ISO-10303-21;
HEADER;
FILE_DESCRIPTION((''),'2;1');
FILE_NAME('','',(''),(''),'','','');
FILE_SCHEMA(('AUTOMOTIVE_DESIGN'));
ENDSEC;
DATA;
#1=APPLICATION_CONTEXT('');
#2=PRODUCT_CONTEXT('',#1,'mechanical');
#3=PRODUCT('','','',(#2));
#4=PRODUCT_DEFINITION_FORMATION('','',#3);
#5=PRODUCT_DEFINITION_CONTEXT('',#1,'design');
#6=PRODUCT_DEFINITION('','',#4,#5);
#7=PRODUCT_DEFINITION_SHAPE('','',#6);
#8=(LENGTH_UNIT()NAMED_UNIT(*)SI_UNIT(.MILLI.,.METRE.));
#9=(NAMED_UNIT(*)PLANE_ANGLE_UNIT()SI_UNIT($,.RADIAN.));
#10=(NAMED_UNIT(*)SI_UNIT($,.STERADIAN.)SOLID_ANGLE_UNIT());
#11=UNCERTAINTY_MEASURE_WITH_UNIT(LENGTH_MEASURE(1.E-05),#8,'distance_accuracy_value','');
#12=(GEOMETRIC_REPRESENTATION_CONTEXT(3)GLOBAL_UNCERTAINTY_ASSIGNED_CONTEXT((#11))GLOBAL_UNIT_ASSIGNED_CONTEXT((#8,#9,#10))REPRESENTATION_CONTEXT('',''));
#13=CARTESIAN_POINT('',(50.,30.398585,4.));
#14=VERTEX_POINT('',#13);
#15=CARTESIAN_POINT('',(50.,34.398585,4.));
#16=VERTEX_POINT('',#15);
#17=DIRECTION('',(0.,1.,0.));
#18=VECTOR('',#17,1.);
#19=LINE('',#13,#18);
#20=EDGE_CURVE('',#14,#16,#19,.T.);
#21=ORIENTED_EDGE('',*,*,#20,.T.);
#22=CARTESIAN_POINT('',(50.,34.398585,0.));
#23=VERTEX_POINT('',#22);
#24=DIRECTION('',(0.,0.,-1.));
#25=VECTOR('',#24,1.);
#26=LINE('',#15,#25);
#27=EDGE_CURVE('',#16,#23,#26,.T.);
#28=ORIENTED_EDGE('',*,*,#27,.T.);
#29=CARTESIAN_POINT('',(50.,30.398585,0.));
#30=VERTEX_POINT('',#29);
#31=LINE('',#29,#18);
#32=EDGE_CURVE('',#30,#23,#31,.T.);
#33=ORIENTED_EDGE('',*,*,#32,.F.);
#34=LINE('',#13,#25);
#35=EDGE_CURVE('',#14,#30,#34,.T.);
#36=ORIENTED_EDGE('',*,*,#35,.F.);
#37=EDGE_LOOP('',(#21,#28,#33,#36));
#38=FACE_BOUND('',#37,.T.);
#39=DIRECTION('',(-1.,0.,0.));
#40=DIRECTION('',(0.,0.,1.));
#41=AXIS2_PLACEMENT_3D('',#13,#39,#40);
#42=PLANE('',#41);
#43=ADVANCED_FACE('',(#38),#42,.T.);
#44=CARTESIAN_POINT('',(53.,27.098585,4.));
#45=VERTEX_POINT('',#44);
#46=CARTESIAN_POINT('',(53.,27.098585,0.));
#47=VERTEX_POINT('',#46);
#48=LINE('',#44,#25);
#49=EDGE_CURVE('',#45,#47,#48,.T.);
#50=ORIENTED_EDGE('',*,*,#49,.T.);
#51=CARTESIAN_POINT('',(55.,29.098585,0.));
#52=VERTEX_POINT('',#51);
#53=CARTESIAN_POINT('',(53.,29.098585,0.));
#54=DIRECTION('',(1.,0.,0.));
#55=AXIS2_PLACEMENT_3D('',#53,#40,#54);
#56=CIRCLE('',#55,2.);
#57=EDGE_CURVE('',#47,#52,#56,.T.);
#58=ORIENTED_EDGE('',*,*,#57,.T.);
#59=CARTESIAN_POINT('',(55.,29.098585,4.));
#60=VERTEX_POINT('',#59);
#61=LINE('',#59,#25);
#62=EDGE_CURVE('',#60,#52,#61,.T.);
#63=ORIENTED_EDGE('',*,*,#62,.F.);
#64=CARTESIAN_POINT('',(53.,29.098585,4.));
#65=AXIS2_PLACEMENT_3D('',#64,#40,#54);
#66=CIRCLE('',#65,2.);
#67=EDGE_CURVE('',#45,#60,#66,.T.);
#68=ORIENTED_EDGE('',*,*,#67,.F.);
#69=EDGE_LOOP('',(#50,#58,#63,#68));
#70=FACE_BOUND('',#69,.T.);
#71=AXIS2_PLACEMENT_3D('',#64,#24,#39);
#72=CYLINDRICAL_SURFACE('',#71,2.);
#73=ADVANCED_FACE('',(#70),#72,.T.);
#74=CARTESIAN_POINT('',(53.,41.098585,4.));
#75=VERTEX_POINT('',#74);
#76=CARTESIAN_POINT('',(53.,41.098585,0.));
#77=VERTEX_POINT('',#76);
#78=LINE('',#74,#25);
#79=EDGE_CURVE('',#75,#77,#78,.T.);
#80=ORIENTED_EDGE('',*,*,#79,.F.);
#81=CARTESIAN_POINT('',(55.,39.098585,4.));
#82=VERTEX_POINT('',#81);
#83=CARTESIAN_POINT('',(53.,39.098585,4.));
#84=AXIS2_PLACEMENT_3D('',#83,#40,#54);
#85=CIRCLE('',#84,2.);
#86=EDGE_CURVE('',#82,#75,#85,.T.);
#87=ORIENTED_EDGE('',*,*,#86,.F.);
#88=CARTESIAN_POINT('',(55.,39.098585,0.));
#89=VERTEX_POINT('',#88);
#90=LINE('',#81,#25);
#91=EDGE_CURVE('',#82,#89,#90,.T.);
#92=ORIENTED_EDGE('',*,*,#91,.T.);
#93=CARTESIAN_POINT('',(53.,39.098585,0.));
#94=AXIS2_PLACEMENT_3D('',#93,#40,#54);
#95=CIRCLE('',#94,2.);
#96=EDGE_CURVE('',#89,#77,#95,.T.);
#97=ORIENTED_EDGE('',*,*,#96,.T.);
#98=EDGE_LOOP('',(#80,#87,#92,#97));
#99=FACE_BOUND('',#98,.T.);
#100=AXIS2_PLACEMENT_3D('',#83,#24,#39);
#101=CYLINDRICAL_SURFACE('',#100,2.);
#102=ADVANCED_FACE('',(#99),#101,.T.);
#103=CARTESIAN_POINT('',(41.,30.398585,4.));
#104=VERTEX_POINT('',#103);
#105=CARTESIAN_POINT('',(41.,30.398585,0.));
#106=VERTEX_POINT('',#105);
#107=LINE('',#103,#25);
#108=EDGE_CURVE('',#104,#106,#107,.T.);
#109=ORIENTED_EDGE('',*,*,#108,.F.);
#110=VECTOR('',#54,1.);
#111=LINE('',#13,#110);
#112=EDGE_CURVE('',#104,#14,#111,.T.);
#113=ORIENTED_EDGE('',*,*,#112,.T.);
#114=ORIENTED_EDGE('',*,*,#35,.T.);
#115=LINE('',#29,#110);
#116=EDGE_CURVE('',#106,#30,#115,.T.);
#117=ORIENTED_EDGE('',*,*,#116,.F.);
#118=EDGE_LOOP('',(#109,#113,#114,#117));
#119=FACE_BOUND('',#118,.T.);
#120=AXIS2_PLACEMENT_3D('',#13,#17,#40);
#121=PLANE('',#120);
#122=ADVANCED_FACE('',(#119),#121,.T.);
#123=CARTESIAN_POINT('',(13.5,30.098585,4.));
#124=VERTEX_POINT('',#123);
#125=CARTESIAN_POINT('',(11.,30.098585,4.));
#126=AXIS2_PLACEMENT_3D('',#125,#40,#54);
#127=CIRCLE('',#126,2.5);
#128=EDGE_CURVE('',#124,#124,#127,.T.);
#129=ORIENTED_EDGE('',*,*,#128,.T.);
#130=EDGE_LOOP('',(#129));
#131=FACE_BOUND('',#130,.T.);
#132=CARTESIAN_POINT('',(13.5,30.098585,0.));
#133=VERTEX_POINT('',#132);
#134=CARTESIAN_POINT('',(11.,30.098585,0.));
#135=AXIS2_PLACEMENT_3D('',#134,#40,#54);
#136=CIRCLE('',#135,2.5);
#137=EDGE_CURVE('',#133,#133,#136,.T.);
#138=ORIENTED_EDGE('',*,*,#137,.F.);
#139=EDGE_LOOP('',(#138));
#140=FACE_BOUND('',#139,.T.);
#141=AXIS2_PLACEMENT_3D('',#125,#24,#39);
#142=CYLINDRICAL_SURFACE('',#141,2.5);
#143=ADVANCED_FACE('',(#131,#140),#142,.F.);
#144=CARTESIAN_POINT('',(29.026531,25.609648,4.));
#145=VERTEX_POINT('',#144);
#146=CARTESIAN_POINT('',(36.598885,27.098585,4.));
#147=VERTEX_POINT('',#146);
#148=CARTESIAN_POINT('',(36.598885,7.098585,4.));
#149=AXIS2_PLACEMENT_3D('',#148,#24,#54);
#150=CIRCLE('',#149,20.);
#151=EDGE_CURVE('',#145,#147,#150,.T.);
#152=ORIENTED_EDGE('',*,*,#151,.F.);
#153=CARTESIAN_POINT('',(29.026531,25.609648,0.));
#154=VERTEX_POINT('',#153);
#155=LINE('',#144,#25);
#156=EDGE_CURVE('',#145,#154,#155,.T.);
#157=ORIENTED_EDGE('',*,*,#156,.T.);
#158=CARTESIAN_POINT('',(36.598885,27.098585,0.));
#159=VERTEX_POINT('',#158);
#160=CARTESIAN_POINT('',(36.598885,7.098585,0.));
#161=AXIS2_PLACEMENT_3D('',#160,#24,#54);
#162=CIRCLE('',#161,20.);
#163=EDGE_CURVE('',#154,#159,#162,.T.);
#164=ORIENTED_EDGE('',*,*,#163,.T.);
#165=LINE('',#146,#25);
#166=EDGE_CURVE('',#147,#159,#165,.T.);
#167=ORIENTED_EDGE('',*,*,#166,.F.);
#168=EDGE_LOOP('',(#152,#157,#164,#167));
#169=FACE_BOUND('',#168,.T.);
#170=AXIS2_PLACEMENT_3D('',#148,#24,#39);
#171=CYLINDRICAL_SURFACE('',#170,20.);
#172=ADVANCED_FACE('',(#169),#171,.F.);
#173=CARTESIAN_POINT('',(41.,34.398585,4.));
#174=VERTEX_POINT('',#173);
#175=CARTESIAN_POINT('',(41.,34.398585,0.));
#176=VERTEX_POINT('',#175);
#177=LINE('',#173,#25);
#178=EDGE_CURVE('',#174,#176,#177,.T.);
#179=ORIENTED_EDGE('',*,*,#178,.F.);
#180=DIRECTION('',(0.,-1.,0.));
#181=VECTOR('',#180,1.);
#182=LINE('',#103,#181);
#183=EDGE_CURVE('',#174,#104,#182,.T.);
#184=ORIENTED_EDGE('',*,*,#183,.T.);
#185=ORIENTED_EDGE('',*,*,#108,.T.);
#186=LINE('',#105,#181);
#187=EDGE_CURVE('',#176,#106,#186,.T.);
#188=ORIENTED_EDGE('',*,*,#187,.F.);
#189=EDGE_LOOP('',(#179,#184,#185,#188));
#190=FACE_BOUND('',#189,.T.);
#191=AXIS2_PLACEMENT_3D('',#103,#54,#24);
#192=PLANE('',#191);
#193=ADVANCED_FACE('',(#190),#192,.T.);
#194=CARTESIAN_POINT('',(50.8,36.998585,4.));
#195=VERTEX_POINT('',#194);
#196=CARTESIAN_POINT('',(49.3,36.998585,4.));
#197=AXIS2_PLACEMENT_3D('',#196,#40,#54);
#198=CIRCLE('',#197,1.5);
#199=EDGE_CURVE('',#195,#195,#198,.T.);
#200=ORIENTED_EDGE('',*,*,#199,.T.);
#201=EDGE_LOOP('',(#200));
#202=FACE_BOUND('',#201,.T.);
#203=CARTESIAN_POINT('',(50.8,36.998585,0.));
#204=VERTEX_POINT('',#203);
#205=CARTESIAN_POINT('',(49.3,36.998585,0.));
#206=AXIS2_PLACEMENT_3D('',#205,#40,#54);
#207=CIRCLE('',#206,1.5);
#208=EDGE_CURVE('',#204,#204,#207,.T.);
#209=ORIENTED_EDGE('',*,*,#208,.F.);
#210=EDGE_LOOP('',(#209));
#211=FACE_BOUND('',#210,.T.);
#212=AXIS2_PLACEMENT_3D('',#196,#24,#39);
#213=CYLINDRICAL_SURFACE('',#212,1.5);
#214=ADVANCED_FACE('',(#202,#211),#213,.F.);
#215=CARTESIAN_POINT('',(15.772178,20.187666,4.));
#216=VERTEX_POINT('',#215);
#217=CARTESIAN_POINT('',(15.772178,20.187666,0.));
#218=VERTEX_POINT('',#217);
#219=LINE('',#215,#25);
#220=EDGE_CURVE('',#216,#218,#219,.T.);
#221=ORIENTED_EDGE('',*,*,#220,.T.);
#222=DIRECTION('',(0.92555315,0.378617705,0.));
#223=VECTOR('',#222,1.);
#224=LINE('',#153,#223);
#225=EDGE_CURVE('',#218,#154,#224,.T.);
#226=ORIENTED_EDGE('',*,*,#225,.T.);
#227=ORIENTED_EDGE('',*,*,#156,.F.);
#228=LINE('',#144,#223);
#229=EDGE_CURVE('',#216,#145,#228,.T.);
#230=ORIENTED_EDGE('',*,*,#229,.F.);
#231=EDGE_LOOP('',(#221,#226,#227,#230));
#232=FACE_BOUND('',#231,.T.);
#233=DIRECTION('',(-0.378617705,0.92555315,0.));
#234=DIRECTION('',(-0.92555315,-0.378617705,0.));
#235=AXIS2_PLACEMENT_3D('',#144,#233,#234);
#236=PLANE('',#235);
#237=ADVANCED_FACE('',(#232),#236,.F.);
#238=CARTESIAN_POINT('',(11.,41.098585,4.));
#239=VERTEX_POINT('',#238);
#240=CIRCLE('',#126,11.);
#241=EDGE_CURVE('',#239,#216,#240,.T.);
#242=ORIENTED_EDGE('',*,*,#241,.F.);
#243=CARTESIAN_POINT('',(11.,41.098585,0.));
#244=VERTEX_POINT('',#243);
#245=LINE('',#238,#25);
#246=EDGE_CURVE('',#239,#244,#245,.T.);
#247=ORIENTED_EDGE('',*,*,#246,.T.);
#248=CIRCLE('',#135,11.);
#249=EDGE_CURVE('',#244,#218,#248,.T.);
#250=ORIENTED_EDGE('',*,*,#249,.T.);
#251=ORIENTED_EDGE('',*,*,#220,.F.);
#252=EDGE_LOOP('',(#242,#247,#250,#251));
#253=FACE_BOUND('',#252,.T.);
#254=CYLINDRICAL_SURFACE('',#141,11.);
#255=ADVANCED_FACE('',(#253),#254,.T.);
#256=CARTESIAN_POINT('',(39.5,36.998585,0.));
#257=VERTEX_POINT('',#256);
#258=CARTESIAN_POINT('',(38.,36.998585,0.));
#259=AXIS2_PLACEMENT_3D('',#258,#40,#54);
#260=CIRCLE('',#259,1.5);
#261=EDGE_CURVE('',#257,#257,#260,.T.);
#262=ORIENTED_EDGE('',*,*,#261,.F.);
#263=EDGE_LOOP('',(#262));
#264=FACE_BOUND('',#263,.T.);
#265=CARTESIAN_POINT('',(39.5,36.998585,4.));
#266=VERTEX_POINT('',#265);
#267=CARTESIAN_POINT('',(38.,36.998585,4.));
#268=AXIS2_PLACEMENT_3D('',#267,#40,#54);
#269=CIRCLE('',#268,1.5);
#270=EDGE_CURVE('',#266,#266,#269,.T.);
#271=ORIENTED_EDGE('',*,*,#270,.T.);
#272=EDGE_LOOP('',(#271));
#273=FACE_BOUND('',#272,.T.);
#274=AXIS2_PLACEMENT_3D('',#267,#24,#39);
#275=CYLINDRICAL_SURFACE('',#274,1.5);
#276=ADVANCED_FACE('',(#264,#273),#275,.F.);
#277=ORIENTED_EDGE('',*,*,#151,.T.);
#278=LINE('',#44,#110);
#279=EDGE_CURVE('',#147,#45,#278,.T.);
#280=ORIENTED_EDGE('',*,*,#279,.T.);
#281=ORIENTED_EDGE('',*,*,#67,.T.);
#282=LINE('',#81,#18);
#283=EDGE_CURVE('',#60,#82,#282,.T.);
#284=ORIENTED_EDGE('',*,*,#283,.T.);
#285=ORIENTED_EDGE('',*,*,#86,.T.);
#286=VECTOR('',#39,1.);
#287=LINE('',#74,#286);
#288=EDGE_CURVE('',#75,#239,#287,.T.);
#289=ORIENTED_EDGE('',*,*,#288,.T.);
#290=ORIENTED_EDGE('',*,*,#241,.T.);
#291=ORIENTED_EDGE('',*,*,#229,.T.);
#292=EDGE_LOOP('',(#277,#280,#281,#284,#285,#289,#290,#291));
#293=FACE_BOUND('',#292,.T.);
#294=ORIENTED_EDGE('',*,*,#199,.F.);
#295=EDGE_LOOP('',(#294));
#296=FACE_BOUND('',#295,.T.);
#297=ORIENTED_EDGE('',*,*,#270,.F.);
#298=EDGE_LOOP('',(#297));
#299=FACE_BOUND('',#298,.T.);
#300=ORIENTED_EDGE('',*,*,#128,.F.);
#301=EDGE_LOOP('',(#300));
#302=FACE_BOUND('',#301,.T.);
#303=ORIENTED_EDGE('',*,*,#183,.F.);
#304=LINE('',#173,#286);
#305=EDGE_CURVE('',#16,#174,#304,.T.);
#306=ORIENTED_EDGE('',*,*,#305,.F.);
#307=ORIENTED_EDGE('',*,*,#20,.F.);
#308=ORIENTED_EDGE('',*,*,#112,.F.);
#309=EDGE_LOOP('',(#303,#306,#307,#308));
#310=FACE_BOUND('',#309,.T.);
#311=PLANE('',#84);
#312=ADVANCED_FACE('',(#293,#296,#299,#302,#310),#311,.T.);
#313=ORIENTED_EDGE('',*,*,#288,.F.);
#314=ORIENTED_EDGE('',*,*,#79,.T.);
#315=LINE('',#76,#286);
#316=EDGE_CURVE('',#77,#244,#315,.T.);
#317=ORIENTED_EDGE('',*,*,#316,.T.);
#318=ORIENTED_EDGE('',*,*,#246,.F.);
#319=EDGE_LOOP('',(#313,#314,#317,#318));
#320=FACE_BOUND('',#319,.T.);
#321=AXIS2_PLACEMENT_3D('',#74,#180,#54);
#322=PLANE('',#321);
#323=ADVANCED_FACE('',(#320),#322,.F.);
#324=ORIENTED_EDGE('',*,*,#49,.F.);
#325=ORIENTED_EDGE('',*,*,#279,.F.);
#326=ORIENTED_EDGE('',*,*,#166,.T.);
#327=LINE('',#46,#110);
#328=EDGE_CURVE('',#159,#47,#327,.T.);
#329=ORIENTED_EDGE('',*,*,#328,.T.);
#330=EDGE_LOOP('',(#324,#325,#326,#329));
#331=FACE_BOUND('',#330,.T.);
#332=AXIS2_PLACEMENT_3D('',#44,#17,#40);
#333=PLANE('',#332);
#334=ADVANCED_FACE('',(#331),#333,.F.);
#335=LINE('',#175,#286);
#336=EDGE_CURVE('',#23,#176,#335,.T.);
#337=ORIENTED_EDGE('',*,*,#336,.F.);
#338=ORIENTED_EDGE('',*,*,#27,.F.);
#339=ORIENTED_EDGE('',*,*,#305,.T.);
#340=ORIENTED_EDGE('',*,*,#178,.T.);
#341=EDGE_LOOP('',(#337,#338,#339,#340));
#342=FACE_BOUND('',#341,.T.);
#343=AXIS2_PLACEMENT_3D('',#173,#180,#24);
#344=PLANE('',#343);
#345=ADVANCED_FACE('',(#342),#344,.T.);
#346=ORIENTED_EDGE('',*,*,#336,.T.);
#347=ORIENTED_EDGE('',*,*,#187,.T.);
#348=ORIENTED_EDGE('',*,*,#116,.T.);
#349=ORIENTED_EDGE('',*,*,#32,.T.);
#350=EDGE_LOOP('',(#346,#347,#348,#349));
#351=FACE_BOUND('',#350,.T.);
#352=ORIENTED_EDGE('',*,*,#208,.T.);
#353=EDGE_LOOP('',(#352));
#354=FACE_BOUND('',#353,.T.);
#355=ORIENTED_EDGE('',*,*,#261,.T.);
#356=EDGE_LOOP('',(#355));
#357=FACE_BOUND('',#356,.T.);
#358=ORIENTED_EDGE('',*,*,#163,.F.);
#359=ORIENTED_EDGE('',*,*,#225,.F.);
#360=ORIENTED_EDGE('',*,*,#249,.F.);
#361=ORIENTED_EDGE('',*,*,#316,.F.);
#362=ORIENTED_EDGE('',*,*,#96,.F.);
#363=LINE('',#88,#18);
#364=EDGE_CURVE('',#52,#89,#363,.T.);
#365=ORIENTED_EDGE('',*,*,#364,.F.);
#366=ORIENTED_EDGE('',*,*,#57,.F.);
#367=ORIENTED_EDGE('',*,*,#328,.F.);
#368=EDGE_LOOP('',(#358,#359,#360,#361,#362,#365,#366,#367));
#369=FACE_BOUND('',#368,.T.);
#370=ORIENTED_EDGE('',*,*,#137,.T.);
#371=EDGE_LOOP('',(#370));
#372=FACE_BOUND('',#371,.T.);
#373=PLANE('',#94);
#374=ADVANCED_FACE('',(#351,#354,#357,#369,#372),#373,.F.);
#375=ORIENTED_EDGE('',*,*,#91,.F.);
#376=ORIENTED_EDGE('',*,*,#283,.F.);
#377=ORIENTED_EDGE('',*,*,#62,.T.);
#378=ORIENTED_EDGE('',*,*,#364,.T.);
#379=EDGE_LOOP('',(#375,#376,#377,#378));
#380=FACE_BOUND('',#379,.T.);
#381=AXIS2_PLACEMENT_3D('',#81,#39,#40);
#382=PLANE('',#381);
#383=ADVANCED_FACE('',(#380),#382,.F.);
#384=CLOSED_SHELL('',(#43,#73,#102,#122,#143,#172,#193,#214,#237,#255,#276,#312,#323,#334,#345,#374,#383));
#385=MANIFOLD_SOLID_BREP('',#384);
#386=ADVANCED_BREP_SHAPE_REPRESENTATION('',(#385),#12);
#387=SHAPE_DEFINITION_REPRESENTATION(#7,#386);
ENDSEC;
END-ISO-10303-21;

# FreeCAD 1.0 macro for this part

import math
import FreeCAD as App
import Part
import Sketcher

doc = App.newDocument("Part")
body = doc.addObject("PartDesign::Body", "Body")

sketch1 = body.newObject("Sketcher::SketchObject", "Sketch")
sketch1.AttachmentSupport = (doc.getObject("XY_Plane"), [""])
sketch1.MapMode = "FlatFace"
sketch1.addGeometry([
    Part.LineSegment(App.Vector(55, 29.098585, 0), App.Vector(55, 39.098585, 0)),
    Part.ArcOfCircle(Part.Circle(App.Vector(53, 39.098585, 0), App.Vector(0, 0, 1), 2), math.radians(0), math.radians(90)),
    Part.LineSegment(App.Vector(53, 41.098585, 0), App.Vector(11, 41.098585, 0)),
    Part.ArcOfCircle(Part.Circle(App.Vector(11, 30.098585, 0), App.Vector(0, 0, 1), 11), math.radians(90), math.radians(295.711147)),
    Part.LineSegment(App.Vector(15.772178, 20.187666, 0), App.Vector(29.026531, 25.609648, 0)),
    Part.ArcOfCircle(Part.Circle(App.Vector(36.598885, 7.098585, 0), App.Vector(0, 0, 1), 20), math.radians(90), math.radians(112.248086)),
    Part.LineSegment(App.Vector(36.598885, 27.098585, 0), App.Vector(53, 27.098585, 0)),
    Part.ArcOfCircle(Part.Circle(App.Vector(53, 29.098585, 0), App.Vector(0, 0, 1), 2), math.radians(-90), math.radians(0)),
    Part.LineSegment(App.Vector(41, 30.398585, 0), App.Vector(41, 34.398585, 0)),
    Part.LineSegment(App.Vector(41, 34.398585, 0), App.Vector(50, 34.398585, 0)),
    Part.LineSegment(App.Vector(50, 34.398585, 0), App.Vector(50, 30.398585, 0)),
    Part.LineSegment(App.Vector(50, 30.398585, 0), App.Vector(41, 30.398585, 0)),
    Part.Circle(App.Vector(11, 30.098585, 0), App.Vector(0, 0, 1), 2.5),
    Part.Circle(App.Vector(49.3, 36.998585, 0), App.Vector(0, 0, 1), 1.5),
    Part.Circle(App.Vector(38, 36.998585, 0), App.Vector(0, 0, 1), 1.5),
], False)
sketch1.addConstraint([
    Sketcher.Constraint("Tangent", 0, 2, 1, 1),
    Sketcher.Constraint("Tangent", 1, 2, 2, 1),
    Sketcher.Constraint("Tangent", 2, 2, 3, 1),
    Sketcher.Constraint("Coincident", 3, 2, 4, 1),
    Sketcher.Constraint("Tangent", 4, 2, 5, 2),
    Sketcher.Constraint("Tangent", 5, 1, 6, 1),
    Sketcher.Constraint("Tangent", 6, 2, 7, 1),
    Sketcher.Constraint("Tangent", 7, 2, 0, 1),
    Sketcher.Constraint("Coincident", 8, 2, 9, 1),
    Sketcher.Constraint("Coincident", 9, 2, 10, 1),
    Sketcher.Constraint("Coincident", 10, 2, 11, 1),
    Sketcher.Constraint("Coincident", 11, 2, 8, 1),
    Sketcher.Constraint("Vertical", 0),
    Sketcher.Constraint("Horizontal", 2),
    Sketcher.Constraint("Horizontal", 6),
    Sketcher.Constraint("Vertical", 8),
    Sketcher.Constraint("Horizontal", 9),
    Sketcher.Constraint("Vertical", 10),
    Sketcher.Constraint("Horizontal", 11),
    Sketcher.Constraint("Coincident", 12, 3, 3, 3),
    Sketcher.Constraint("Equal", 1, 7),
    Sketcher.Constraint("Equal", 13, 14),
    Sketcher.Constraint("Horizontal", 13, 3, 14, 3),
    Sketcher.Constraint("Diameter", 12, 5.0),
    Sketcher.Constraint("Diameter", 13, 3.0),
    Sketcher.Constraint("Radius", 1, 2.0),
    Sketcher.Constraint("Radius", 3, 11.0),
    Sketcher.Constraint("Radius", 5, 20.0),
    Sketcher.Constraint("DistanceX", 2, 2, 2, 1, 42.0),
    Sketcher.Constraint("DistanceX", 9, 1, 9, 2, 9.0),
    Sketcher.Constraint("DistanceY", 0, 1, 0, 2, 10.0),
    Sketcher.Constraint("DistanceY", 8, 1, 8, 2, 4.0),
    Sketcher.Constraint("DistanceX", -1, 1, 1, 3, 53.0),
    Sketcher.Constraint("DistanceX", -1, 1, 14, 3, 38.0),
    Sketcher.Constraint("DistanceX", -1, 1, 8, 2, 41.0),
    Sketcher.Constraint("DistanceX", -1, 1, 13, 3, 49.3),
    Sketcher.Constraint("DistanceY", 13, 3, 1, 3, 2.1),
    Sketcher.Constraint("DistanceY", 8, 2, 14, 3, 2.6),
    Sketcher.Constraint("DistanceX", 6, 1, 6, 2, 16.401115),
    Sketcher.Constraint("DistanceX", -1, 1, 3, 2, 15.772178),
    Sketcher.Constraint("DistanceY", -1, 1, 1, 3, 39.098585),
])
pad1 = body.newObject("PartDesign::Pad", "Pad")
pad1.Profile = sketch1
pad1.Length = 4

doc.recompute()
